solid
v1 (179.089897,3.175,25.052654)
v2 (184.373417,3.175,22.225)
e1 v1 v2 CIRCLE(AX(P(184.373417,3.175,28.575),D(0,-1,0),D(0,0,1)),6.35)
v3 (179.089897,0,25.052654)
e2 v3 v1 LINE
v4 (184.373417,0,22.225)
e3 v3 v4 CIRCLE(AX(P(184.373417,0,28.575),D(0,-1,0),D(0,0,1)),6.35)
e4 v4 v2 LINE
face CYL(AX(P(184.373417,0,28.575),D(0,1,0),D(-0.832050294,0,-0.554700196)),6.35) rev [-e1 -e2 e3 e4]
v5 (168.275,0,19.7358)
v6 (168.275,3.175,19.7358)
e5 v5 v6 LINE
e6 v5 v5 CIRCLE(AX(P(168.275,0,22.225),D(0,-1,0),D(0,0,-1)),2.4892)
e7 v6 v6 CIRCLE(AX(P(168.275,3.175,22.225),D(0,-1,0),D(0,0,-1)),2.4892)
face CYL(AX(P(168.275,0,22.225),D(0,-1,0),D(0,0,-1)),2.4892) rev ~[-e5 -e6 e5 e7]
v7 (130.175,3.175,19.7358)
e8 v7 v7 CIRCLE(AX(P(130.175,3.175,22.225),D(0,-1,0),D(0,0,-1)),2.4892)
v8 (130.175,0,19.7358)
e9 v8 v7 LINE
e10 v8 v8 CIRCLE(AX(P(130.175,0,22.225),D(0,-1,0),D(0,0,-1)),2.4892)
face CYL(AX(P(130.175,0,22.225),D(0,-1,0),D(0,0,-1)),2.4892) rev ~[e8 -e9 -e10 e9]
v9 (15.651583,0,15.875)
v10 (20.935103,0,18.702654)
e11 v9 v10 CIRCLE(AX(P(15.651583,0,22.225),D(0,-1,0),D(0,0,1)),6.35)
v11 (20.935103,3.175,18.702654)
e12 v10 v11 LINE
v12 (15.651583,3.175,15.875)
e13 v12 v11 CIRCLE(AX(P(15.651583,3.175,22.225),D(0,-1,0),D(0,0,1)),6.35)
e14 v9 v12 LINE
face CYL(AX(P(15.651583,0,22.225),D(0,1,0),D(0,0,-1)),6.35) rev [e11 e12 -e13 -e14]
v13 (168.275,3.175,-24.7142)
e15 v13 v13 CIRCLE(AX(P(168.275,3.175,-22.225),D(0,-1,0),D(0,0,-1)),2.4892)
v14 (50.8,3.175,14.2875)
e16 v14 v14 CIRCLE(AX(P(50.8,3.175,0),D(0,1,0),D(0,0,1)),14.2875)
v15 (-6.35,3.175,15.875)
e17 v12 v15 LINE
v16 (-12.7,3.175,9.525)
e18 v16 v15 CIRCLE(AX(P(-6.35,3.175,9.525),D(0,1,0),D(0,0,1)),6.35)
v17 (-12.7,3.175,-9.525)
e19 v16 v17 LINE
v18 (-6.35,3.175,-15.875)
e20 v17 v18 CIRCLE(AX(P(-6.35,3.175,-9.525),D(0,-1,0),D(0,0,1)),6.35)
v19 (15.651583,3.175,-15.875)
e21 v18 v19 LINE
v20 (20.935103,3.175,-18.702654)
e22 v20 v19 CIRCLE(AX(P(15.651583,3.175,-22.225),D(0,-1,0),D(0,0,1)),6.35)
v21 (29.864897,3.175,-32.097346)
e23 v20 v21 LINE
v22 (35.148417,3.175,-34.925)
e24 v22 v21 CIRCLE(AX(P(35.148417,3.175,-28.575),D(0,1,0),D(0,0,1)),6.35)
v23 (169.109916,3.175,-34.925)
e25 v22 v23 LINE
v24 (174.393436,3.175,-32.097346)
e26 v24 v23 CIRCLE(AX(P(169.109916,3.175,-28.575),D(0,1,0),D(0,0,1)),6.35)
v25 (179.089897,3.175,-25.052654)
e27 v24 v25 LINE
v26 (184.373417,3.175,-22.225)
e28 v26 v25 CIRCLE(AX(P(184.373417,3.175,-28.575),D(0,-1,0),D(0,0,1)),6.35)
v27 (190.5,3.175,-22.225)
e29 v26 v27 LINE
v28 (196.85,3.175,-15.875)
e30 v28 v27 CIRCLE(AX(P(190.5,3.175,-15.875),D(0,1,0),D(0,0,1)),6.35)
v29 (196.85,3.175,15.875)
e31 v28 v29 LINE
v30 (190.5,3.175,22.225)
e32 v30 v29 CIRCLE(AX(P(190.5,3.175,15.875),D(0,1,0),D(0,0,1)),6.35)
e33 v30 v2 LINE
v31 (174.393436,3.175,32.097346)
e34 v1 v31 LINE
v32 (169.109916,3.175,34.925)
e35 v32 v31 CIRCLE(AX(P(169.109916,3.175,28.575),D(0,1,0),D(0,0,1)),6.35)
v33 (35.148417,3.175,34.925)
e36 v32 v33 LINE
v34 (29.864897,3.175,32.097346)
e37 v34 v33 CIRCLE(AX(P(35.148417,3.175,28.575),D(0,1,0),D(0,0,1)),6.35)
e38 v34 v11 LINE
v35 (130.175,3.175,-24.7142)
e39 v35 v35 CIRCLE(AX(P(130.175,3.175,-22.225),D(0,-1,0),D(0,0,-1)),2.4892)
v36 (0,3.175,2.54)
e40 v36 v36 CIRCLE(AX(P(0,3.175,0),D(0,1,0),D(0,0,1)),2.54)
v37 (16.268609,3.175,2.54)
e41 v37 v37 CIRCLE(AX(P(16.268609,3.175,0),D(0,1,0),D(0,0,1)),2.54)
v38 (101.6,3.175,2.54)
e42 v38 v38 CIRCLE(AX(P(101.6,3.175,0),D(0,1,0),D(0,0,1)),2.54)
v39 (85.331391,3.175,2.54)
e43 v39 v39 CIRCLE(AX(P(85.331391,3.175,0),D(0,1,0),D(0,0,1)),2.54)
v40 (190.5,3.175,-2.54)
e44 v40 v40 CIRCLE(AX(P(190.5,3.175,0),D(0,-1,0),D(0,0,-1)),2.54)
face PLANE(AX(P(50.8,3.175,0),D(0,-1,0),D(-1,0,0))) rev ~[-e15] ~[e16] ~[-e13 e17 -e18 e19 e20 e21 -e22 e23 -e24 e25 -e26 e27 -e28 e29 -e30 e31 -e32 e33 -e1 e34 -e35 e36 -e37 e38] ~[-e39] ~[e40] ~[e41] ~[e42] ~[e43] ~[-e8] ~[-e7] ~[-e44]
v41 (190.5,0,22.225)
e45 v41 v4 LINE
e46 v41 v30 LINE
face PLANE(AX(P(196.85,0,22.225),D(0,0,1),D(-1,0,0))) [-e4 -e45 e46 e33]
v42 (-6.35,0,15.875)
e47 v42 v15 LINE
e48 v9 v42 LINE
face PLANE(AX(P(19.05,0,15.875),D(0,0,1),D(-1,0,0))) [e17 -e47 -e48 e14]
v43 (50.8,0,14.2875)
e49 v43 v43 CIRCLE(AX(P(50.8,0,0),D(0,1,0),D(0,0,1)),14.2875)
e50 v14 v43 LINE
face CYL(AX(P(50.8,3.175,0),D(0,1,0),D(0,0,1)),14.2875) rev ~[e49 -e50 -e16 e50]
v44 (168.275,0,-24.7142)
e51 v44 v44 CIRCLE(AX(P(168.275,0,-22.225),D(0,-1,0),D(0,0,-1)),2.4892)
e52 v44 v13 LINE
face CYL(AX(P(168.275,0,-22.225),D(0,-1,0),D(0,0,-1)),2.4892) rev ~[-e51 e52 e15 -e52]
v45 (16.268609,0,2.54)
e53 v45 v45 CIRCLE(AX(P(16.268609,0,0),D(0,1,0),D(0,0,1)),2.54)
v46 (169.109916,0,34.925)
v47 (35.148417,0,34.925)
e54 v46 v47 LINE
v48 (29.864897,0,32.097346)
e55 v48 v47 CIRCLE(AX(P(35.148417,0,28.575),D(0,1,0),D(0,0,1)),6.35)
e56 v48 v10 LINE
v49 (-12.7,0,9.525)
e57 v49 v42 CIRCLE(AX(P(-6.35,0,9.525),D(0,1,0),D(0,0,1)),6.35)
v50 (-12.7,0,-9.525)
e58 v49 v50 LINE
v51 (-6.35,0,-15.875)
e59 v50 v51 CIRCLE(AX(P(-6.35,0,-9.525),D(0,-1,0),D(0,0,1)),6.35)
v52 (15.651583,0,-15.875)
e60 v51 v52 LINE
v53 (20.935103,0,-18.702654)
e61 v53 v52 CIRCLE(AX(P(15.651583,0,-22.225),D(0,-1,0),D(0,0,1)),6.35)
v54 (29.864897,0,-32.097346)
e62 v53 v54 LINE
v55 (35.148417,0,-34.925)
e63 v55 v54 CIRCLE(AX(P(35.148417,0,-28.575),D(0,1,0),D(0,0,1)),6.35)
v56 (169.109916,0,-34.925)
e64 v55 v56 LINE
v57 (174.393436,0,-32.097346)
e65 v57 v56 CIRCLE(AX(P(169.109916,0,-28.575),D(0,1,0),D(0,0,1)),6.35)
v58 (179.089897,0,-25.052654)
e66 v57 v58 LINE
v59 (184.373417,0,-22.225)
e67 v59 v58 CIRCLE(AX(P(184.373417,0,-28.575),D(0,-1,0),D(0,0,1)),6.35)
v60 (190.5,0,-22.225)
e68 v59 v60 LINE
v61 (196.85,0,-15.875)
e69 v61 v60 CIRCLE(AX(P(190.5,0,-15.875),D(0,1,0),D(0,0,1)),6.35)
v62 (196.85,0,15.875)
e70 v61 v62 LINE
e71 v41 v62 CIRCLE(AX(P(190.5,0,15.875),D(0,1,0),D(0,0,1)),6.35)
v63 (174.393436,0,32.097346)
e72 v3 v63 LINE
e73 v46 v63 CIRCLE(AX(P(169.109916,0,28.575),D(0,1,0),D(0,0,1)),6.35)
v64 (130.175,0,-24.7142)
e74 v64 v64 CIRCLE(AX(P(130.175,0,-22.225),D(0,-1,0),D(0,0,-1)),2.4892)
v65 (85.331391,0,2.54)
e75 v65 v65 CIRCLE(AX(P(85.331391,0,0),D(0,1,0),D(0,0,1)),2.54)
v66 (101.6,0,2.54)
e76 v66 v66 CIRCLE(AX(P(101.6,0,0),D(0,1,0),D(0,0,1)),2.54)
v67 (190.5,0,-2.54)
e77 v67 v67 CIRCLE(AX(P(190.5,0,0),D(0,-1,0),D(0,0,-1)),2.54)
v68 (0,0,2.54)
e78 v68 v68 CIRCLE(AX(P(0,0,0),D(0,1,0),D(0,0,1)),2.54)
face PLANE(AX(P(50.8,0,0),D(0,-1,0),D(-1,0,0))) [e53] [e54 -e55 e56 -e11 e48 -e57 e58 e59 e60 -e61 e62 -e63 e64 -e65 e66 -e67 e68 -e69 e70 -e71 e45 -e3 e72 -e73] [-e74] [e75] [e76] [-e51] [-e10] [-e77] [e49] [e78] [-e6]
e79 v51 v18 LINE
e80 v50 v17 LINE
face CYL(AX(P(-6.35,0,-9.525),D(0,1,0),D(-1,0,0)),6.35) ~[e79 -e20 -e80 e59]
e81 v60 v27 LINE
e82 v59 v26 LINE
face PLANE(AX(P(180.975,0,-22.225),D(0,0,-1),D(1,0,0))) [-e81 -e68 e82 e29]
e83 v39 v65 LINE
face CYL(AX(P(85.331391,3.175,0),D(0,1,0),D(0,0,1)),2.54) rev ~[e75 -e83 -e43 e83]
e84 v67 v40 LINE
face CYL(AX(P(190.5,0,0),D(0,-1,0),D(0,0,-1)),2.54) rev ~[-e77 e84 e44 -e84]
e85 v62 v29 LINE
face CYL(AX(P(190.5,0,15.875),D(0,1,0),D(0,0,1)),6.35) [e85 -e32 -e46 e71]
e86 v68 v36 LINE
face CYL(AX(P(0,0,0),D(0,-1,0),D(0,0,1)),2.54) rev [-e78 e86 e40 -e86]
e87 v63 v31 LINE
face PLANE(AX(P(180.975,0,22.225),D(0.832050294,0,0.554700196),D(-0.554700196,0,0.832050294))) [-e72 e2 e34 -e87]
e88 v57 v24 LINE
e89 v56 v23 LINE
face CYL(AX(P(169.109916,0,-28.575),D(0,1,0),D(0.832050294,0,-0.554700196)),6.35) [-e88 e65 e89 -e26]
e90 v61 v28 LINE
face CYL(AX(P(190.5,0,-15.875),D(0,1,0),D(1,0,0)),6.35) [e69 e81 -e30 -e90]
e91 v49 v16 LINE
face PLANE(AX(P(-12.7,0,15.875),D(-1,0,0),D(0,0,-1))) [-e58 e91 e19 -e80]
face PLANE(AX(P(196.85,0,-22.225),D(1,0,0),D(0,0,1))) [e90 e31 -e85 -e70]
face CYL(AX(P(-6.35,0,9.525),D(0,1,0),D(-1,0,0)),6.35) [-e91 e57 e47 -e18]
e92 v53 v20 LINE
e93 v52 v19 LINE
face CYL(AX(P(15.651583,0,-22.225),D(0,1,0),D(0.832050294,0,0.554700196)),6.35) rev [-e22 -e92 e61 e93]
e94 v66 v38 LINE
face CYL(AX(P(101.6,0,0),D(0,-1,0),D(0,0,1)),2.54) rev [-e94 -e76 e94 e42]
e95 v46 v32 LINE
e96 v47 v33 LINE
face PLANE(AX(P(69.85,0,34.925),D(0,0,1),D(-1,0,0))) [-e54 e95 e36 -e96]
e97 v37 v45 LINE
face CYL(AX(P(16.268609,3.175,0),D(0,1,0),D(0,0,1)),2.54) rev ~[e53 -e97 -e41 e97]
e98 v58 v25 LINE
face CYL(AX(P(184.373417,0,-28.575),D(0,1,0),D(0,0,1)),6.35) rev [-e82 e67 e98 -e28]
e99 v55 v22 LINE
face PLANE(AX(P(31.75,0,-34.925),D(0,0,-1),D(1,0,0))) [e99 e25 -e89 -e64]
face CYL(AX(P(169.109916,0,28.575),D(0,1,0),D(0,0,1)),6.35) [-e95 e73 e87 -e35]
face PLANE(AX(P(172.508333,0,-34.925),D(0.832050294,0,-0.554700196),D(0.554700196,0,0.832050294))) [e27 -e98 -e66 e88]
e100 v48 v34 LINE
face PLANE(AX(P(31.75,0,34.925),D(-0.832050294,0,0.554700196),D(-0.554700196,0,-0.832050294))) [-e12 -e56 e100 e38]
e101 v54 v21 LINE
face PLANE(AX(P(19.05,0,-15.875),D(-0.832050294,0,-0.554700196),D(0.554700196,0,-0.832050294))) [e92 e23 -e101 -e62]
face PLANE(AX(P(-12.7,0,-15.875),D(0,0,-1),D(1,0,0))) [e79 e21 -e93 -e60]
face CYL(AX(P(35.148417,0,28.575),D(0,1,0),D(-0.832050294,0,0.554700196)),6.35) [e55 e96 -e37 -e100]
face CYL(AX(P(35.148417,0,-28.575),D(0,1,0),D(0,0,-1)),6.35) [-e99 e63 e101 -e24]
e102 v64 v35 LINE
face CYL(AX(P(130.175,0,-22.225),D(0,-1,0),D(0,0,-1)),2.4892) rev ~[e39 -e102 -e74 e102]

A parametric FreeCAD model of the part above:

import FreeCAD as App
import Part
import Sketcher
from FreeCAD import Vector
Q = App.Units.Quantity


def edges_at(feature, points):
    """Names of the edges that pass closest to the given points."""
    edges = feature.Shape.Edges
    near = lambda p: min(range(len(edges)), key=lambda i: edges[i].distToShape(Part.Vertex(*p))[0])
    return sorted({f"Edge{near(p) + 1}" for p in points})


def add_polygon(sketch, points):
    """Adds a closed chain of lines whose ends are joined by coincident constraints."""
    first, n = sketch.GeometryCount, len(points)
    for a, b in zip(points, points[1:] + points[:1]):
        sketch.addGeometry(Part.LineSegment(App.Vector(*a, 0), App.Vector(*b, 0)), False)
    for i in range(n):
        sketch.addConstraint(Sketcher.Constraint("Coincident", first + i, 2, first + (i + 1) % n, 1))

doc = App.newDocument("Part")
body = doc.addObject("PartDesign::Body", "Body")

sketch1 = body.newObject("Sketcher::SketchObject", "Sketch")
sketch1.AttachmentSupport = (doc.getObject("XZ_Plane"), [""])
sketch1.MapMode = "FlatFace"
add_polygon(sketch1, [(31.8, -34.9), (19.1, -15.9), (-12.7, -15.9), (-12.7, 15.9), (19.1, 15.9), (31.8, 34.9), (69.8, 34.9), (82.5, 15.9), (114.3, 15.9), (114.3, -15.9), (82.5, -15.9), (69.8, -34.9)])
sketch1.addGeometry(Part.Circle(Vector(101.6, 0, 0), Vector(0, 0, 1), 2.5), False)
sketch1.addGeometry(Part.Circle(Vector(0, 0, 0), Vector(0, 0, 1), 2.5), False)
sketch1.addConstraint([
    Sketcher.Constraint("Horizontal", 1),
    Sketcher.Constraint("Vertical", 2),
    Sketcher.Constraint("Horizontal", 3),
    Sketcher.Constraint("Horizontal", 5),
    Sketcher.Constraint("Horizontal", 7),
    Sketcher.Constraint("Vertical", 8),
    Sketcher.Constraint("Horizontal", 9),
    Sketcher.Constraint("Horizontal", 11),
    Sketcher.Constraint("Coincident", 13, 3, -1, 1),
    Sketcher.Constraint("Equal", 12, 13),
    Sketcher.Constraint("Symmetric", 0, 2, 3, 2, -1),
    Sketcher.Constraint("Symmetric", 6, 2, 9, 2, -1),
    Sketcher.Constraint("Symmetric", 5, 2, 10, 2, -1),
    Sketcher.Constraint("PointOnObject", 12, 3, -1),
    Sketcher.Constraint("Parallel", 0, 6),
    Sketcher.Constraint("Parallel", 4, 10),
    Sketcher.Constraint("Horizontal", 3, 2, 6, 2),
    Sketcher.Constraint("Equal", 3, 7),
    Sketcher.Constraint("Equal", 9, 2),
    Sketcher.Constraint("Diameter", 12, Q("0.2 in")),
    Sketcher.Constraint("DistanceX", 5, 1, 5, 2, Q("1.5 in")),
    Sketcher.Constraint("DistanceX", -1, 1, 12, 3, Q("4 in")),
    Sketcher.Constraint("DistanceY", 0, 2, 4, 2, Q("2 in")),
    Sketcher.Constraint("DistanceX", 3, 2, 5, 2, Q("2 in")),
    Sketcher.Constraint("DistanceX", 1, 2, 1, 1, Q("1.25 in")),
    Sketcher.Constraint("DistanceX", 1, 2, -1, 1, Q("0.5 in")),
])
pad1 = body.newObject("PartDesign::Pad", "Pad")
pad1.Profile = sketch1
pad1.Length = Q("0.125 in")
pad1.Reversed = True

sketch2 = body.newObject("Sketcher::SketchObject", "Sketch001")
sketch2.AttachmentSupport = (doc.getObject("XZ_Plane"), [""])
sketch2.MapMode = "FlatFace"
sketch2.AttachmentOffset = App.Placement(Vector(0, 0, -0.125 * 25.4), App.Rotation())
sketch2.addGeometry(Part.Circle(Vector(51, 0, 0), Vector(0, 0, 1), 14), False)
sketch2.addConstraint([
    Sketcher.Constraint("PointOnObject", 0, 3, -1),
    Sketcher.Constraint("Diameter", 0, Q("1.125 in")),
    Sketcher.Constraint("DistanceX", -1, 1, 0, 3, Q("2 in")),
])
pocket1 = body.newObject("PartDesign::Pocket", "Pocket")
pocket1.Profile = sketch2
pocket1.Length = Q("0.125 in")
pocket1.Reversed = True

sketch3 = body.newObject("Sketcher::SketchObject", "Sketch002")
sketch3.AttachmentSupport = (doc.getObject("XZ_Plane"), [""])
sketch3.MapMode = "FlatFace"
sketch3.AttachmentOffset = App.Placement(Vector(0, 0, -0.125 * 25.4), App.Rotation())
sketch3.addGeometry([
    Part.Circle(Vector(85.3, 0, 0), Vector(0, 0, 1), 2.5),
    Part.Circle(Vector(16.3, 0, 0), Vector(0, 0, 1), 2.5),
], False)
sketch3.addConstraint([
    Sketcher.Constraint("Equal", 0, 1),
    Sketcher.Constraint("PointOnObject", 0, 3, -1),
    Sketcher.Constraint("PointOnObject", 1, 3, -1),
    Sketcher.Constraint("Diameter", 0, Q("0.2 in")),
    Sketcher.Constraint("DistanceX", -1, 1, 0, 3, 85.331391),
    Sketcher.Constraint("DistanceX", -1, 1, 1, 3, 16.268609),
])
pocket2 = body.newObject("PartDesign::Pocket", "Pocket001")
pocket2.Profile = sketch3
pocket2.Type = "ThroughAll"
pocket2.Reversed = True

sketch4 = body.newObject("Sketcher::SketchObject", "Sketch003")
sketch4.AttachmentSupport = (doc.getObject("XZ_Plane"), [""])
sketch4.MapMode = "FlatFace"
add_polygon(sketch4, [(69.8, 34.9), (69.8, -34.9), (172.5, -34.9), (181, -22.2), (196.8, -22.2), (196.8, 22.2), (181, 22.2), (172.5, 34.9)])
sketch4.addGeometry(Part.Circle(Vector(130.2, -22.2, 0), Vector(0, 0, 1), 2.5), False)
sketch4.addGeometry(Part.Circle(Vector(168.3, -22.2, 0), Vector(0, 0, 1), 2.5), False)
sketch4.addGeometry(Part.Circle(Vector(85.3, 0, 0), Vector(0, 0, 1), 2.5), False)
sketch4.addGeometry(Part.Circle(Vector(101.6, 0, 0), Vector(0, 0, 1), 2.5), False)
sketch4.addGeometry(Part.Circle(Vector(130.2, 22.2, 0), Vector(0, 0, 1), 2.5), False)
sketch4.addGeometry(Part.Circle(Vector(190.5, 0, 0), Vector(0, 0, 1), 2.5), False)
sketch4.addGeometry(Part.Circle(Vector(168.3, 22.2, 0), Vector(0, 0, 1), 2.5), False)
sketch4.addConstraint([
    Sketcher.Constraint("Vertical", 0),
    Sketcher.Constraint("Horizontal", 1),
    Sketcher.Constraint("Horizontal", 3),
    Sketcher.Constraint("Vertical", 4),
    Sketcher.Constraint("Horizontal", 5),
    Sketcher.Constraint("Horizontal", 7),
    Sketcher.Constraint("Equal", 8, 9),
    Sketcher.Constraint("Equal", 10, 11),
    Sketcher.Constraint("Equal", 9, 12),
    Sketcher.Constraint("Equal", 11, 13),
    Sketcher.Constraint("Equal", 12, 14),
    Sketcher.Constraint("Symmetric", 8, 3, 12, 3, -1),
    Sketcher.Constraint("Symmetric", 9, 3, 14, 3, -1),
    Sketcher.Constraint("Symmetric", 2, 2, 5, 2, -1),
    Sketcher.Constraint("Symmetric", 1, 2, 6, 2, -1),
    Sketcher.Constraint("PointOnObject", 10, 3, -1),
    Sketcher.Constraint("PointOnObject", 11, 3, -1),
    Sketcher.Constraint("PointOnObject", 13, 3, -1),
    Sketcher.Constraint("Horizontal", 8, 3, 9, 3),
    Sketcher.Constraint("Horizontal", 9, 3, 2, 2),
    Sketcher.Constraint("Diameter", 10, Q("0.2 in")),
    Sketcher.Constraint("Diameter", 8, Q("0.196 in")),
    Sketcher.Constraint("DistanceX", -1, 1, 11, 3, Q("4 in")),
    Sketcher.Constraint("DistanceX", 8, 3, 2, 2, Q("2 in")),
    Sketcher.Constraint("DistanceY", 0, 2, 0, 1, Q("2.75 in")),
    Sketcher.Constraint("DistanceY", 4, 1, 4, 2, Q("1.75 in")),
    Sketcher.Constraint("DistanceX", -1, 1, 13, 3, Q("7.5 in")),
    Sketcher.Constraint("DistanceX", 8, 3, 9, 3, Q("1.5 in")),
    Sketcher.Constraint("DistanceX", 3, 1, 3, 2, Q("0.625 in")),
    Sketcher.Constraint("DistanceX", -1, 1, 0, 2, Q("2.75 in")),
    Sketcher.Constraint("DistanceX", -1, 1, 3, 2, Q("7.75 in")),
    Sketcher.Constraint("Distance", 2, 15.2635),
    Sketcher.Constraint("DistanceX", -1, 1, 10, 3, 85.331391),
])
pad2 = body.newObject("PartDesign::Pad", "Pad001")
pad2.Profile = sketch4
pad2.Length = Q("0.125 in")
pad2.Reversed = True
doc.recompute()

fillet = body.newObject("PartDesign::Fillet", "Fillet")
fillet.Base = (pad2, edges_at(pad2, [
    (19.05, 1.587, -15.875),
    (31.75, 1.587, -34.925),
    (31.75, 1.587, 34.925),
    (19.05, 1.587, 15.875),
    (-12.7, 1.587, 15.875),
    (-12.7, 1.587, -15.875),
    (172.508, 1.587, 34.925),
    (172.508, 1.587, -34.925),
    (180.975, 1.587, -22.225),
    (196.85, 1.587, -22.225),
    (196.85, 1.587, 22.225),
    (180.975, 1.587, 22.225),
]))
fillet.Radius = Q("0.25 in")

doc.recompute()
